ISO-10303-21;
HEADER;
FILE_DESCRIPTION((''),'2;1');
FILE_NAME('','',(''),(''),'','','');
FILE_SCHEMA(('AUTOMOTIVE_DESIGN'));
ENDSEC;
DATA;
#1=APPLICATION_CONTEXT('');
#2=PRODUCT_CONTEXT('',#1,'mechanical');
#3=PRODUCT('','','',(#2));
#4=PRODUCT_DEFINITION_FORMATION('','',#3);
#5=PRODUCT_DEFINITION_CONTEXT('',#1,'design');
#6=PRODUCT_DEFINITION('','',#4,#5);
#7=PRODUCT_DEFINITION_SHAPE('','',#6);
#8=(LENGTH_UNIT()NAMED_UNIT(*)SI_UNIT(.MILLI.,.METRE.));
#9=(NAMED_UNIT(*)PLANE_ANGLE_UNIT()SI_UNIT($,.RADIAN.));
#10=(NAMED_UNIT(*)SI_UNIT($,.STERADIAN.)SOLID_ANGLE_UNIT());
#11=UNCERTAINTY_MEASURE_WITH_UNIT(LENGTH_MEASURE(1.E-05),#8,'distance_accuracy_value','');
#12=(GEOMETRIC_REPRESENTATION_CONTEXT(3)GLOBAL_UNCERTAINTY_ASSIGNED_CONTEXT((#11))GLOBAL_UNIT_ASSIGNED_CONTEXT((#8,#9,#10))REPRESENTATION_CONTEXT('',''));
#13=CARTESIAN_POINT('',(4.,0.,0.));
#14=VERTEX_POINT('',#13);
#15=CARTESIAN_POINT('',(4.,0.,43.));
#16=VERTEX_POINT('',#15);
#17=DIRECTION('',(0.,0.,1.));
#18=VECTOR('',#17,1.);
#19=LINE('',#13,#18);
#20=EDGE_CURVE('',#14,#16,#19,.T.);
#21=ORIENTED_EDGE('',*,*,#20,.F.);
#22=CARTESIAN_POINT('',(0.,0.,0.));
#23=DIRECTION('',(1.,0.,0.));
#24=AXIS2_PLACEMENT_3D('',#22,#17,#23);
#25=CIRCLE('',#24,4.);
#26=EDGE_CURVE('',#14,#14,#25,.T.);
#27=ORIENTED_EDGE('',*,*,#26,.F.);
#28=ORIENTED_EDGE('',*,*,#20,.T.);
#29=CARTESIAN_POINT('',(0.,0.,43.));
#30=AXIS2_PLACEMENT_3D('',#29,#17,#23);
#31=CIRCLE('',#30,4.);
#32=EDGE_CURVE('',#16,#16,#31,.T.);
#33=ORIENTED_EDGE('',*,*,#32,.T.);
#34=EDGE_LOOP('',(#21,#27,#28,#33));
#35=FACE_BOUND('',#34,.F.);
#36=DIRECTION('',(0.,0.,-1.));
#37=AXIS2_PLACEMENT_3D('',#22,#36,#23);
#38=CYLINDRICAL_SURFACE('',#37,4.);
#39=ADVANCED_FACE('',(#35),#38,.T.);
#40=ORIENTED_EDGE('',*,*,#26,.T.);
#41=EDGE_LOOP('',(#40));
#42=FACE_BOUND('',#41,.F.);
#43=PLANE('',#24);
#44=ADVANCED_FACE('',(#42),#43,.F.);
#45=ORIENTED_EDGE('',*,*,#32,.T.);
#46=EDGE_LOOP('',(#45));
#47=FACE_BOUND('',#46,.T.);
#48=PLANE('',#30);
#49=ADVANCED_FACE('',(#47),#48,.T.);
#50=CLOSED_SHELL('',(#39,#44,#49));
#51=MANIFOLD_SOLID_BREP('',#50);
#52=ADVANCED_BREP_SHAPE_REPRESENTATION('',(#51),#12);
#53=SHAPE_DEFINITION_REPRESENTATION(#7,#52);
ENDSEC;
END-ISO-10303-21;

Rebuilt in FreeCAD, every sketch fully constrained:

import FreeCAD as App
import Part
import Sketcher

V = App.Vector
Q = App.Units.Quantity

doc = App.newDocument("Part")
body = doc.addObject("PartDesign::Body", "Body")

# Sketch on XY plane
sketch1 = body.newObject("Sketcher::SketchObject", "Sketch")
sketch1.AttachmentSupport = (doc.getObject("XY_Plane"), [""])
sketch1.MapMode = "FlatFace"
sketch1.addGeometry(Part.Circle(V(0, 0, 0), V(0, 0, 1), 4), False)
sketch1.addConstraint([
    Sketcher.Constraint("Coincident", 0, 3, -1, 1),
    Sketcher.Constraint("Diameter", 0, Q("8 mm")),
])
pad1 = body.newObject("PartDesign::Pad", "Pad")
pad1.Profile = sketch1
pad1.Length = 43

doc.recompute()
